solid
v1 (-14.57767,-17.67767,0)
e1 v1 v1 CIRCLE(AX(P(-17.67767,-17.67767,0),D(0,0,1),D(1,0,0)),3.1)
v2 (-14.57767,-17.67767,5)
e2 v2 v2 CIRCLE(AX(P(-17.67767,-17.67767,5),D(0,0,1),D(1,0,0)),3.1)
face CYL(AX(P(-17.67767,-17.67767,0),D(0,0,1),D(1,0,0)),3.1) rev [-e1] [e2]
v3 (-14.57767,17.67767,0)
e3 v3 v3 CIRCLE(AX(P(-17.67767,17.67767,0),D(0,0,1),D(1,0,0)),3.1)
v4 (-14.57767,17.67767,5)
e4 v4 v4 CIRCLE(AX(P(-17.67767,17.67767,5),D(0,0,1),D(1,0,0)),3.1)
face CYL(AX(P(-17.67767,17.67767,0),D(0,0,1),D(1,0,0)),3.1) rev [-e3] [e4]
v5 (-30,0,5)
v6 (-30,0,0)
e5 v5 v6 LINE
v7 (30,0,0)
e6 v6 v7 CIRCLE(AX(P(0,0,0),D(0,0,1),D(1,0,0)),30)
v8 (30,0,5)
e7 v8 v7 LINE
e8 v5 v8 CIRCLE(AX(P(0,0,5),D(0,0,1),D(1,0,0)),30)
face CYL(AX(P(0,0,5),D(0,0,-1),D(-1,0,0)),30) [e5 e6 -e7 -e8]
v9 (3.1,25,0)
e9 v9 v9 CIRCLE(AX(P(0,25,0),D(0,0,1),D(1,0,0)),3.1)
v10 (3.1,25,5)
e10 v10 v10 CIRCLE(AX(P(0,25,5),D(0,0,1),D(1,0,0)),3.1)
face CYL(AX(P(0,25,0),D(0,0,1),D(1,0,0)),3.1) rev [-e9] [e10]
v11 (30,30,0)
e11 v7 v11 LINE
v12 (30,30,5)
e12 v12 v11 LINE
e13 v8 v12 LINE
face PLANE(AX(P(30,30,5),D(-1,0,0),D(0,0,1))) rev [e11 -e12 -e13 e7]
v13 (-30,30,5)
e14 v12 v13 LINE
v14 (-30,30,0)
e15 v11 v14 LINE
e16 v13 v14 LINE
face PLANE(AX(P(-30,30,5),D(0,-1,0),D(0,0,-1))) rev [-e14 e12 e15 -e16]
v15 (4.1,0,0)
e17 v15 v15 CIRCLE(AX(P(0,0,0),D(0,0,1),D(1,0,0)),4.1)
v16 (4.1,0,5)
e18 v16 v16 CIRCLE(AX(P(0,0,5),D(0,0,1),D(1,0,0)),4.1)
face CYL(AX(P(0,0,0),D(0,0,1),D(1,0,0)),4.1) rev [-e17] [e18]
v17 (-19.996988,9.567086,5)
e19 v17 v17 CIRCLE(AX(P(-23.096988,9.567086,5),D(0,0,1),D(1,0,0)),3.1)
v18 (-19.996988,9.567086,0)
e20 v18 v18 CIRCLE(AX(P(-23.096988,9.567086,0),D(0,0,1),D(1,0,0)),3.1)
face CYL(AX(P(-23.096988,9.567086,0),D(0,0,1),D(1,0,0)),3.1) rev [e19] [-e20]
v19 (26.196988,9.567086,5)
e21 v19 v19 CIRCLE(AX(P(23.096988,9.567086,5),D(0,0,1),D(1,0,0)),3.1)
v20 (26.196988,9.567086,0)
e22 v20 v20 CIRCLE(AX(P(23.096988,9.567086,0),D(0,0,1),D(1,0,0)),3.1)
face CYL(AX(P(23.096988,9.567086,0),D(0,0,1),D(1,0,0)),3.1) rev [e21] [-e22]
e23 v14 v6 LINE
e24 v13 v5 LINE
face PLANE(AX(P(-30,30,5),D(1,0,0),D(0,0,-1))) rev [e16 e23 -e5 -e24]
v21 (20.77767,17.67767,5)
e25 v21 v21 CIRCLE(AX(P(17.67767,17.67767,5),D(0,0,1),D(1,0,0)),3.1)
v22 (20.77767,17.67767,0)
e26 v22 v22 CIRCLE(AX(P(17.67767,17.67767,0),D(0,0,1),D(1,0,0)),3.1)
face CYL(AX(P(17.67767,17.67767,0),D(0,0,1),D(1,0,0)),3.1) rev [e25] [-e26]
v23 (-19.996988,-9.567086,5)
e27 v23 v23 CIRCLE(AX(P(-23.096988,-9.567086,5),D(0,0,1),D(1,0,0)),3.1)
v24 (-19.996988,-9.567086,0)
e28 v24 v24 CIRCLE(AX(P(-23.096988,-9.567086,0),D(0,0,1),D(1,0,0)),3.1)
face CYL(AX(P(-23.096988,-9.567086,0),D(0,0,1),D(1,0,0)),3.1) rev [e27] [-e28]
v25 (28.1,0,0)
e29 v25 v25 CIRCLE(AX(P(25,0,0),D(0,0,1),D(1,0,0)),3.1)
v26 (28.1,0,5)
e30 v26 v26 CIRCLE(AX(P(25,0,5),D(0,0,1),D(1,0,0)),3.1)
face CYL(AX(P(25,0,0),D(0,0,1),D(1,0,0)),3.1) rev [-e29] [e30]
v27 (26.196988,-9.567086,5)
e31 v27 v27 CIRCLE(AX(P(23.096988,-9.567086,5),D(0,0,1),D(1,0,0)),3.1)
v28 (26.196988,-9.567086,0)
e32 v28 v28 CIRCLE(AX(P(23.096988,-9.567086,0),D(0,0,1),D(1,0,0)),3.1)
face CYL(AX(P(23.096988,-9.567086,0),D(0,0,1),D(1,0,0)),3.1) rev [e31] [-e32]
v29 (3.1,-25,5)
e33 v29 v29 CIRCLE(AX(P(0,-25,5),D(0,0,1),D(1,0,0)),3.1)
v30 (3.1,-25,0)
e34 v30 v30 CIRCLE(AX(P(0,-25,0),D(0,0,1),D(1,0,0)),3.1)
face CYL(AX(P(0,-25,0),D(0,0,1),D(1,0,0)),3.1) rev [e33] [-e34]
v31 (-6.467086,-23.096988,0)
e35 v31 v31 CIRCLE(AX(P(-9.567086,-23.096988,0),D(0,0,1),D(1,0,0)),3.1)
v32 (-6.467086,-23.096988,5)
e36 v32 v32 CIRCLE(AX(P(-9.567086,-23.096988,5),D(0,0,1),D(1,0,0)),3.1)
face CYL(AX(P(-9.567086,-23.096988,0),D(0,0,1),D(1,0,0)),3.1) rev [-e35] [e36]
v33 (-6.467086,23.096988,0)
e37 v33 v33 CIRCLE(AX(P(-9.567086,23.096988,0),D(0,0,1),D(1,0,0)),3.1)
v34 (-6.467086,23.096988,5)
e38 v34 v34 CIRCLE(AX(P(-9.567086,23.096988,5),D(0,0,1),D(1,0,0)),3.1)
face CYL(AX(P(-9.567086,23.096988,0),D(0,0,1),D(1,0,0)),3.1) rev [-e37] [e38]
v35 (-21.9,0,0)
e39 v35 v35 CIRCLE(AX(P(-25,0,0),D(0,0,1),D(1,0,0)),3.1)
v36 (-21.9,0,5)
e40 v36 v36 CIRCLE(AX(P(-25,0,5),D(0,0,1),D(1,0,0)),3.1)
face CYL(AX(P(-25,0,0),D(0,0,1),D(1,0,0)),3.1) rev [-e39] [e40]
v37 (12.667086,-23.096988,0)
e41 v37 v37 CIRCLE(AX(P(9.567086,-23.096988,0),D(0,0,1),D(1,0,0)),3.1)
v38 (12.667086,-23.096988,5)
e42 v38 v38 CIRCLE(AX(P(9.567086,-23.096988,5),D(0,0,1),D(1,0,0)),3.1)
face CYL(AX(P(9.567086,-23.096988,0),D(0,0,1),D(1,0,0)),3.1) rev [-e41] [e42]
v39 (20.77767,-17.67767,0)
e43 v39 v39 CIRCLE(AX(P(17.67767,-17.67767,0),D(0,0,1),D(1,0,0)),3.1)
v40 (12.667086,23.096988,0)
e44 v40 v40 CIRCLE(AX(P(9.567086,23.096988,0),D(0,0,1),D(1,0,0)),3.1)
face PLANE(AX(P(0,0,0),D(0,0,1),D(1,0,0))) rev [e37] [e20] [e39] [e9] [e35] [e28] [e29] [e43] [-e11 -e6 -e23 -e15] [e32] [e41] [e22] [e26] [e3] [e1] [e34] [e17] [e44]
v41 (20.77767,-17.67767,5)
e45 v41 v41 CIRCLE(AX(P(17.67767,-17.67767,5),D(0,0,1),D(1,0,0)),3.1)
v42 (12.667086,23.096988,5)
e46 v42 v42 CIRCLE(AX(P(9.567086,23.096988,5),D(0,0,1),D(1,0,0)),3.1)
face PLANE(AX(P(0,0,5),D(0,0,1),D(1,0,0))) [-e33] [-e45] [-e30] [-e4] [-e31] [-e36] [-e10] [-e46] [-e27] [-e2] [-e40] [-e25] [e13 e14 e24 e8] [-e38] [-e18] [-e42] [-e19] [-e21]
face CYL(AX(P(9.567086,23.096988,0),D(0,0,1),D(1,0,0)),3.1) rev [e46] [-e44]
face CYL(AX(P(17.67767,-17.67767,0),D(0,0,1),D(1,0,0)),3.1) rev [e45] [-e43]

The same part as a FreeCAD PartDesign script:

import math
import FreeCAD as App
import Part
import Sketcher

V = App.Vector

doc = App.newDocument("Part")
body = doc.addObject("PartDesign::Body", "Body")

sketch1 = doc.addObject("Sketcher::SketchObject", "Sketch")
body.addObject(sketch1)
sketch1.AttachmentSupport = (doc.XY_Plane, [""])
sketch1.MapMode = "FlatFace"
sketch1.addGeometry(Part.LineSegment(V(30, 30, 0), V(-30, 30, 0)), False)
sketch1.addGeometry(Part.LineSegment(V(-30, 30, 0), V(-30, 0, 0)), False)
sketch1.addGeometry(Part.ArcOfCircle(Part.Circle(V(0, 0, 0), V(0, 0, 1), 30), math.radians(180), math.radians(360)), False)
sketch1.addGeometry(Part.LineSegment(V(30, 0, 0), V(30, 30, 0)), False)
sketch1.addConstraint(Sketcher.Constraint("Coincident", 0, 2, 1, 1))
sketch1.addConstraint(Sketcher.Constraint("Tangent", 1, 2, 2, 1))
sketch1.addConstraint(Sketcher.Constraint("Tangent", 2, 2, 3, 1))
sketch1.addConstraint(Sketcher.Constraint("Coincident", 3, 2, 0, 1))
sketch1.addConstraint(Sketcher.Constraint("Horizontal", 0))
sketch1.addConstraint(Sketcher.Constraint("Vertical", 1))
sketch1.addConstraint(Sketcher.Constraint("Vertical", 3))
sketch1.addConstraint(Sketcher.Constraint("Coincident", 2, 3, -1, 1))
sketch1.addConstraint(Sketcher.Constraint("Radius", 2, 30.0))
sketch1.addConstraint(Sketcher.Constraint("DistanceY", 1, 2, 1, 1, 30.0))
pad1 = doc.addObject("PartDesign::Pad", "Pad")
body.addObject(pad1)
pad1.Profile = sketch1
pad1.Length = 5

sketch2 = doc.addObject("Sketcher::SketchObject", "Sketch001")
body.addObject(sketch2)
sketch2.AttachmentSupport = (doc.XY_Plane, [""])
sketch2.MapMode = "FlatFace"
sketch2.AttachmentOffset = App.Placement(V(0, 0, 5), App.Rotation())
sketch2.addGeometry(Part.Circle(V(0, 0, 0), V(0, 0, 1), 4.1), False)
sketch2.addConstraint(Sketcher.Constraint("Coincident", 0, 3, -1, 1))
sketch2.addConstraint(Sketcher.Constraint("Diameter", 0, 8.2))
pocket1 = doc.addObject("PartDesign::Pocket", "Pocket")
body.addObject(pocket1)
pocket1.Profile = sketch2
pocket1.Length = 5

sketch3 = doc.addObject("Sketcher::SketchObject", "Sketch002")
body.addObject(sketch3)
sketch3.AttachmentSupport = (doc.XY_Plane, [""])
sketch3.MapMode = "FlatFace"
sketch3.AttachmentOffset = App.Placement(V(0, 0, 5), App.Rotation())
sketch3.addGeometry(Part.Circle(V(0, 25, 0), V(0, 0, 1), 3.1), False)
sketch3.addGeometry(Part.Circle(V(9.6, 23.1, 0), V(0, 0, 1), 3.1), False)
sketch3.addGeometry(Part.Circle(V(17.7, 17.7, 0), V(0, 0, 1), 3.1), False)
sketch3.addGeometry(Part.Circle(V(23.1, 9.6, 0), V(0, 0, 1), 3.1), False)
sketch3.addGeometry(Part.Circle(V(25, 0, 0), V(0, 0, 1), 3.1), False)
sketch3.addGeometry(Part.Circle(V(23.1, -9.6, 0), V(0, 0, 1), 3.1), False)
sketch3.addGeometry(Part.Circle(V(17.7, -17.7, 0), V(0, 0, 1), 3.1), False)
sketch3.addGeometry(Part.Circle(V(9.6, -23.1, 0), V(0, 0, 1), 3.1), False)
sketch3.addGeometry(Part.Circle(V(0, -25, 0), V(0, 0, 1), 3.1), False)
sketch3.addGeometry(Part.Circle(V(-9.6, -23.1, 0), V(0, 0, 1), 3.1), False)
sketch3.addGeometry(Part.Circle(V(-17.7, -17.7, 0), V(0, 0, 1), 3.1), False)
sketch3.addGeometry(Part.Circle(V(-23.1, -9.6, 0), V(0, 0, 1), 3.1), False)
sketch3.addGeometry(Part.Circle(V(-25, 0, 0), V(0, 0, 1), 3.1), False)
sketch3.addGeometry(Part.Circle(V(-23.1, 9.6, 0), V(0, 0, 1), 3.1), False)
sketch3.addGeometry(Part.Circle(V(-17.7, 17.7, 0), V(0, 0, 1), 3.1), False)
sketch3.addGeometry(Part.Circle(V(-9.6, 23.1, 0), V(0, 0, 1), 3.1), False)
sketch3.addConstraint(Sketcher.Constraint("Equal", 0, 1))
sketch3.addConstraint(Sketcher.Constraint("Equal", 1, 2))
sketch3.addConstraint(Sketcher.Constraint("Equal", 2, 3))
sketch3.addConstraint(Sketcher.Constraint("Equal", 3, 4))
sketch3.addConstraint(Sketcher.Constraint("Equal", 4, 5))
sketch3.addConstraint(Sketcher.Constraint("Equal", 5, 6))
sketch3.addConstraint(Sketcher.Constraint("Equal", 6, 7))
sketch3.addConstraint(Sketcher.Constraint("Equal", 7, 8))
sketch3.addConstraint(Sketcher.Constraint("Equal", 8, 9))
sketch3.addConstraint(Sketcher.Constraint("Equal", 9, 10))
sketch3.addConstraint(Sketcher.Constraint("Equal", 10, 11))
sketch3.addConstraint(Sketcher.Constraint("Equal", 11, 12))
sketch3.addConstraint(Sketcher.Constraint("Equal", 12, 13))
sketch3.addConstraint(Sketcher.Constraint("Equal", 13, 14))
sketch3.addConstraint(Sketcher.Constraint("Equal", 14, 15))
sketch3.addConstraint(Sketcher.Constraint("Symmetric", 0, 3, 8, 3, -1, 1))
sketch3.addConstraint(Sketcher.Constraint("Symmetric", 1, 3, 9, 3, -1, 1))
sketch3.addConstraint(Sketcher.Constraint("Symmetric", 2, 3, 10, 3, -1, 1))
sketch3.addConstraint(Sketcher.Constraint("Symmetric", 3, 3, 11, 3, -1, 1))
sketch3.addConstraint(Sketcher.Constraint("Symmetric", 4, 3, 12, 3, -1, 1))
sketch3.addConstraint(Sketcher.Constraint("Symmetric", 5, 3, 13, 3, -1, 1))
sketch3.addConstraint(Sketcher.Constraint("Symmetric", 6, 3, 14, 3, -1, 1))
sketch3.addConstraint(Sketcher.Constraint("Symmetric", 7, 3, 15, 3, -1, 1))
sketch3.addConstraint(Sketcher.Constraint("Symmetric", 7, 3, 9, 3, -2))
sketch3.addConstraint(Sketcher.Constraint("Symmetric", 6, 3, 10, 3, -2))
sketch3.addConstraint(Sketcher.Constraint("Symmetric", 5, 3, 11, 3, -2))
sketch3.addConstraint(Sketcher.Constraint("PointOnObject", 0, 3, -2))
sketch3.addConstraint(Sketcher.Constraint("PointOnObject", 4, 3, -1))
sketch3.addConstraint(Sketcher.Constraint("Diameter", 0, 6.2))
sketch3.addConstraint(Sketcher.Constraint("DistanceY", -1, 1, 0, 3, 25.0))
sketch3.addConstraint(Sketcher.Constraint("DistanceX", -1, 1, 4, 3, 25.0))
sketch3.addConstraint(Sketcher.Constraint("DistanceY", -1, 1, 1, 3, 23.096988))
sketch3.addConstraint(Sketcher.Constraint("DistanceX", -1, 1, 2, 3, 17.67767))
sketch3.addConstraint(Sketcher.Constraint("DistanceY", -1, 1, 2, 3, 17.67767))
sketch3.addConstraint(Sketcher.Constraint("DistanceX", -1, 1, 3, 3, 23.096988))
sketch3.addConstraint(Sketcher.Constraint("DistanceY", 5, 3, 3, 3, 19.134172))
sketch3.addConstraint(Sketcher.Constraint("DistanceX", 9, 3, 7, 3, 19.134172))
pocket2 = doc.addObject("PartDesign::Pocket", "Pocket001")
body.addObject(pocket2)
pocket2.Profile = sketch3
pocket2.Length = 5

doc.recompute()
